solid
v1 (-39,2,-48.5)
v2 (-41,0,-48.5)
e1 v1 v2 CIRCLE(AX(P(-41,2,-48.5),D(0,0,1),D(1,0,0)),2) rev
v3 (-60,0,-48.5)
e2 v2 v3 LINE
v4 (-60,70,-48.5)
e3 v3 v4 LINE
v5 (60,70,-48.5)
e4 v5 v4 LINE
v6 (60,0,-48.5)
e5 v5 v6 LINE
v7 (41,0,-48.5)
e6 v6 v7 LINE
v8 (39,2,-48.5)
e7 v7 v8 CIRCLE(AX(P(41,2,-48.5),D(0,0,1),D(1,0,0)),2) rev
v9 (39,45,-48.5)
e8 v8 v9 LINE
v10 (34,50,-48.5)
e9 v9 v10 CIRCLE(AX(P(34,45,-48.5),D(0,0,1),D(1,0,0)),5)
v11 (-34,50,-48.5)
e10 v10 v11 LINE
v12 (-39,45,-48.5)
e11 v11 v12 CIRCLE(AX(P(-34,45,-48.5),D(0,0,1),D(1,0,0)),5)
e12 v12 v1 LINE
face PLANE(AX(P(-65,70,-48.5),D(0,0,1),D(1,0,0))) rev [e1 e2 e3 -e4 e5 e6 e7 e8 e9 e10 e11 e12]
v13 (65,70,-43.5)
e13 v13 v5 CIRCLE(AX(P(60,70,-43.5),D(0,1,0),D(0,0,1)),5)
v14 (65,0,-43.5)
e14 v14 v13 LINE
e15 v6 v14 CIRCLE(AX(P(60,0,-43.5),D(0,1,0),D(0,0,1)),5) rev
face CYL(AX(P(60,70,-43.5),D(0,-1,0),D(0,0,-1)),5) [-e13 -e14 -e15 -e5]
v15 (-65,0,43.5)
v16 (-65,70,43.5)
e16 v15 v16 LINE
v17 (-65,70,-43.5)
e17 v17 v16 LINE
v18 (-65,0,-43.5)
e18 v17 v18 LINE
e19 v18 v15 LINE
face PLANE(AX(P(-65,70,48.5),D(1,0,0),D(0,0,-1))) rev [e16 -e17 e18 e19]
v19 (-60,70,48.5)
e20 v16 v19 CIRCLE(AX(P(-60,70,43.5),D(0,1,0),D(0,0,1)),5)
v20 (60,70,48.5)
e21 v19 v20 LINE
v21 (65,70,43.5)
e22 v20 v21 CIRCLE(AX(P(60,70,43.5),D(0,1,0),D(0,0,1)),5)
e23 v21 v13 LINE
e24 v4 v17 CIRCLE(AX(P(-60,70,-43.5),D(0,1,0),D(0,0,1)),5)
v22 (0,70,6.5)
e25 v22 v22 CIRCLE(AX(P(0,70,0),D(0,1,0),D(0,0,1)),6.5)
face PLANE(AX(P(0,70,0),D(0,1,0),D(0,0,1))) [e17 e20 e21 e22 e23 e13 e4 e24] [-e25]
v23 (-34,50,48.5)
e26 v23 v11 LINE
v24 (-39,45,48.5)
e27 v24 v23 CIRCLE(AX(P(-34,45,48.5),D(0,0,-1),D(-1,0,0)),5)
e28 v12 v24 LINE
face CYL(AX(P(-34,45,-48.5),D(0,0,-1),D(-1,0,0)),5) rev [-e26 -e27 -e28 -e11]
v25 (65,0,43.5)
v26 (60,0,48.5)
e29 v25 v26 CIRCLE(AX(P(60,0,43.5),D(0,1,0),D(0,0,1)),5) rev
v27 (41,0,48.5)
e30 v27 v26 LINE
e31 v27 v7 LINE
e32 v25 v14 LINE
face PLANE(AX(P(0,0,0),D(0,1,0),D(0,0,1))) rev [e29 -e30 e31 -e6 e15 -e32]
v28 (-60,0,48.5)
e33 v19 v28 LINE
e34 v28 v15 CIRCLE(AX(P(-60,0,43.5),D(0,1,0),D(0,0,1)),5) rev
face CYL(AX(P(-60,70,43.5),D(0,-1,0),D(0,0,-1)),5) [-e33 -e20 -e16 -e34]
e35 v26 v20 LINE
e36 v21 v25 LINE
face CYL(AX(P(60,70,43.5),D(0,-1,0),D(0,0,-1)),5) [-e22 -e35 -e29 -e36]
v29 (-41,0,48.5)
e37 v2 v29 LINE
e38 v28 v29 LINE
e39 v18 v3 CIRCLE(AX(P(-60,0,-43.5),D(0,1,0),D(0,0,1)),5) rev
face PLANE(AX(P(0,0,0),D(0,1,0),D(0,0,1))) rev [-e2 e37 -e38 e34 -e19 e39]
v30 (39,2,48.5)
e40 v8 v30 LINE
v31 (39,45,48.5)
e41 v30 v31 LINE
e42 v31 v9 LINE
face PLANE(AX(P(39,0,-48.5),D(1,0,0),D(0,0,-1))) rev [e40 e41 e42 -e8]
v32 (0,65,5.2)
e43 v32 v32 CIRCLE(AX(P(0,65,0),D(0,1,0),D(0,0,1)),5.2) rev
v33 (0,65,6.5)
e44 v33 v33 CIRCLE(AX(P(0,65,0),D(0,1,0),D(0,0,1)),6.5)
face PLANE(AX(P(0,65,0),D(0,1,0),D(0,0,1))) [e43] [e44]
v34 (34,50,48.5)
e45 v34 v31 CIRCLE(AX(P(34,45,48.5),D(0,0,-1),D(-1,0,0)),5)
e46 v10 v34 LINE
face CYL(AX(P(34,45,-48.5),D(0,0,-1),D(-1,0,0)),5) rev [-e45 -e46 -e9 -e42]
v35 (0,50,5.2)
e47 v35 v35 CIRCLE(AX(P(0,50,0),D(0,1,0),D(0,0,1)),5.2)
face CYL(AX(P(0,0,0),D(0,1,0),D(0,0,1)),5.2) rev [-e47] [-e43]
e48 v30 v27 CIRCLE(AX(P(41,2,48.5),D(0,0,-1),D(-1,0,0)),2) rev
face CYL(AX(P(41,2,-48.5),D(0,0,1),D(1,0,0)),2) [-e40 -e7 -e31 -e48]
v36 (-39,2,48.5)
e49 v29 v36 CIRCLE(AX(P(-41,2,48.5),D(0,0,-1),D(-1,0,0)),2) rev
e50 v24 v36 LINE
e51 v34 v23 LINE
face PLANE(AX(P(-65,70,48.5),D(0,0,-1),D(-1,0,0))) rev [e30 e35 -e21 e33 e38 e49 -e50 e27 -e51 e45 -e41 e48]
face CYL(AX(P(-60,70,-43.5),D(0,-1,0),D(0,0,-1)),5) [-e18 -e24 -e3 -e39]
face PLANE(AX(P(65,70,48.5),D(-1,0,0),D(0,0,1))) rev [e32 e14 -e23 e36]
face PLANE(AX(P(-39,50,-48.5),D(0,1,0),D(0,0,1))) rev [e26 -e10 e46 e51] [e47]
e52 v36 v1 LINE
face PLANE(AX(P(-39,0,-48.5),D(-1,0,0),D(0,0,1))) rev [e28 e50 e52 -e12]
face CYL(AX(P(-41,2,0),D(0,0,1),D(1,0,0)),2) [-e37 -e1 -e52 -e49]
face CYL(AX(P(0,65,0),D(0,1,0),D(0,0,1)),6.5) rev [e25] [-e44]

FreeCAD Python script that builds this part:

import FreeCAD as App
import Part
import Sketcher
Q = App.Units.Quantity


def edges_at(feature, points):
    """Names of the edges that pass closest to the given points."""
    edges = feature.Shape.Edges
    near = lambda p: min(range(len(edges)), key=lambda i: edges[i].distToShape(Part.Vertex(*p))[0])
    return sorted({f"Edge{near(p) + 1}" for p in points})

doc = App.newDocument("Part")
body = doc.addObject("PartDesign::Body", "Body")

sketch1 = body.newObject("Sketcher::SketchObject", "Sketch")
sketch1.AttachmentSupport = (doc.getObject("XZ_Plane"), [""])
sketch1.MapMode = "FlatFace"
sketch1.addGeometry([
    Part.LineSegment(App.Vector(-65, -48, 0), App.Vector(-65, 48, 0)),
    Part.LineSegment(App.Vector(-65, 48, 0), App.Vector(65, 48, 0)),
    Part.LineSegment(App.Vector(65, 48, 0), App.Vector(65, -48, 0)),
    Part.LineSegment(App.Vector(65, -48, 0), App.Vector(-65, -48, 0)),
], False)
sketch1.addConstraint([
    Sketcher.Constraint("Coincident", 0, 2, 1, 1),
    Sketcher.Constraint("Coincident", 1, 2, 2, 1),
    Sketcher.Constraint("Coincident", 2, 2, 3, 1),
    Sketcher.Constraint("Coincident", 3, 2, 0, 1),
    Sketcher.Constraint("Vertical", 0),
    Sketcher.Constraint("Horizontal", 1),
    Sketcher.Constraint("Vertical", 2),
    Sketcher.Constraint("Horizontal", 3),
    Sketcher.Constraint("Symmetric", 0, 2, 2, 2, -1, 1),
    Sketcher.Constraint("DistanceX", 1, 1, 1, 2, Q("130 mm")),
    Sketcher.Constraint("DistanceY", 0, 1, 0, 2, Q("97 mm")),
])
pad1 = body.newObject("PartDesign::Pad", "Pad")
pad1.Profile = sketch1
pad1.Length = 70
pad1.Reversed = True

sketch2 = body.newObject("Sketcher::SketchObject", "Sketch001")
sketch2.AttachmentSupport = (doc.getObject("XY_Plane"), [""])
sketch2.MapMode = "FlatFace"
sketch2.AttachmentOffset = App.Placement(App.Vector(0, 0, 48.5), App.Rotation())
sketch2.addGeometry([
    Part.LineSegment(App.Vector(-39, 50, 0), App.Vector(-39, 0, 0)),
    Part.LineSegment(App.Vector(-39, 0, 0), App.Vector(39, 0, 0)),
    Part.LineSegment(App.Vector(39, 0, 0), App.Vector(39, 50, 0)),
    Part.LineSegment(App.Vector(39, 50, 0), App.Vector(-39, 50, 0)),
], False)
sketch2.addConstraint([
    Sketcher.Constraint("Coincident", 0, 2, 1, 1),
    Sketcher.Constraint("Coincident", 1, 2, 2, 1),
    Sketcher.Constraint("Coincident", 2, 2, 3, 1),
    Sketcher.Constraint("Coincident", 3, 2, 0, 1),
    Sketcher.Constraint("Vertical", 0),
    Sketcher.Constraint("Horizontal", 1),
    Sketcher.Constraint("Vertical", 2),
    Sketcher.Constraint("Horizontal", 3),
    Sketcher.Constraint("Symmetric", 0, 2, 1, 2, -1, 1),
    Sketcher.Constraint("DistanceX", 1, 1, 1, 2, Q("78 mm")),
    Sketcher.Constraint("DistanceY", 0, 2, 0, 1, Q("50 mm")),
])
pocket1 = body.newObject("PartDesign::Pocket", "Pocket")
pocket1.Profile = sketch2
pocket1.Type = "ThroughAll"
doc.recompute()

fillet = body.newObject("PartDesign::Fillet", "Fillet")
fillet.Base = (pocket1, edges_at(pocket1, [(-39, 50, 0), (39, 50, 0)]))
fillet.Radius = 5

sketch3 = body.newObject("Sketcher::SketchObject", "Sketch002")
sketch3.AttachmentSupport = (doc.getObject("XZ_Plane"), [""])
sketch3.MapMode = "FlatFace"
sketch3.AttachmentOffset = App.Placement(App.Vector(0, 0, -70), App.Rotation())
sketch3.addGeometry(Part.Circle(App.Vector(0, 0, 0), App.Vector(0, 0, 1), 5), False)
sketch3.addConstraint([
    Sketcher.Constraint("Coincident", 0, 3, -1, 1),
    Sketcher.Constraint("Diameter", 0, Q("10.4 mm")),
])
pocket2 = body.newObject("PartDesign::Pocket", "Pocket001")
pocket2.Profile = sketch3
pocket2.Type = "ThroughAll"
pocket2.Reversed = True

sketch4 = body.newObject("Sketcher::SketchObject", "Sketch003")
sketch4.AttachmentSupport = (doc.getObject("XZ_Plane"), [""])
sketch4.MapMode = "FlatFace"
sketch4.AttachmentOffset = App.Placement(App.Vector(0, 0, -70), App.Rotation())
sketch4.addGeometry(Part.Circle(App.Vector(0, 0, 0), App.Vector(0, 0, 1), 6), False)
sketch4.addConstraint([
    Sketcher.Constraint("Coincident", 0, 3, -1, 1),
    Sketcher.Constraint("Diameter", 0, Q("13 mm")),
])
pocket3 = body.newObject("PartDesign::Pocket", "Pocket002")
pocket3.Profile = sketch4
pocket3.Length = 5
pocket3.Reversed = True
doc.recompute()

fillet2 = body.newObject("PartDesign::Fillet", "Fillet001")
fillet2.Base = (pocket3, edges_at(pocket3, [
    (-65, 35, 48.5),
    (-65, 35, -48.5),
    (65, 35, -48.5),
    (65, 35, 48.5),
]))
fillet2.Radius = 5
doc.recompute()

fillet3 = body.newObject("PartDesign::Fillet", "Fillet002")
fillet3.Base = (fillet2, edges_at(fillet2, [(-39, 0, 0), (39, 0, 0)]))
fillet3.Radius = 2

doc.recompute()
